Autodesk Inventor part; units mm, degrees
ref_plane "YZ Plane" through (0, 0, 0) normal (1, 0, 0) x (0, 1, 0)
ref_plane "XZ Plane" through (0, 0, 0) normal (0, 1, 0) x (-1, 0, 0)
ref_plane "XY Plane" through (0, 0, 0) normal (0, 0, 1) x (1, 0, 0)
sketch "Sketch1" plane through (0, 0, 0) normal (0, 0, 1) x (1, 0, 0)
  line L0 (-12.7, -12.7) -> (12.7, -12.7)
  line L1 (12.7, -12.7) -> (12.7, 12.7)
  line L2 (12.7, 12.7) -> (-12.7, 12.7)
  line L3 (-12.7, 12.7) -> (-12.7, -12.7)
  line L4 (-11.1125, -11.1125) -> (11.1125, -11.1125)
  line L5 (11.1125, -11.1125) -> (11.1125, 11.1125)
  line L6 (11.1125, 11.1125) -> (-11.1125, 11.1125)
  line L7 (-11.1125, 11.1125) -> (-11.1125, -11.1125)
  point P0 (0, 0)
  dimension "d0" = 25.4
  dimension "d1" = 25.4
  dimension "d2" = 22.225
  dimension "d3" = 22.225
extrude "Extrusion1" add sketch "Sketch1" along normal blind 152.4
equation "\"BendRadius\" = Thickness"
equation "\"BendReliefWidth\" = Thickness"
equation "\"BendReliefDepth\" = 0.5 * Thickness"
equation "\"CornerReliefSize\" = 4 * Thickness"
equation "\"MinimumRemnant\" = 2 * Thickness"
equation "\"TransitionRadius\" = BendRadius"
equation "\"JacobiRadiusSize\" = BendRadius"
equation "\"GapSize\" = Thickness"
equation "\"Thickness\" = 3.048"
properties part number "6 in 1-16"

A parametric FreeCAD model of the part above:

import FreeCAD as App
import Part
import Sketcher
Q = App.Units.Quantity

doc = App.newDocument("Part")
body = doc.addObject("PartDesign::Body", "Body")

sketch1 = doc.addObject("Sketcher::SketchObject", "Sketch")
body.addObject(sketch1)
sketch1.AttachmentSupport = (doc.XY_Plane, [""])
sketch1.MapMode = "FlatFace"
sketch1.addGeometry(Part.LineSegment(App.Vector(-12.7, 12.7, 0), App.Vector(-12.7, -12.7, 0)), False)
sketch1.addGeometry(Part.LineSegment(App.Vector(-12.7, -12.7, 0), App.Vector(12.7, -12.7, 0)), False)
sketch1.addGeometry(Part.LineSegment(App.Vector(12.7, -12.7, 0), App.Vector(12.7, 12.7, 0)), False)
sketch1.addGeometry(Part.LineSegment(App.Vector(12.7, 12.7, 0), App.Vector(-12.7, 12.7, 0)), False)
sketch1.addGeometry(Part.LineSegment(App.Vector(11.1125, -11.1125, 0), App.Vector(-11.1125, -11.1125, 0)), False)
sketch1.addGeometry(Part.LineSegment(App.Vector(-11.1125, -11.1125, 0), App.Vector(-11.1125, 11.1125, 0)), False)
sketch1.addGeometry(Part.LineSegment(App.Vector(-11.1125, 11.1125, 0), App.Vector(11.1125, 11.1125, 0)), False)
sketch1.addGeometry(Part.LineSegment(App.Vector(11.1125, 11.1125, 0), App.Vector(11.1125, -11.1125, 0)), False)
sketch1.addConstraint(Sketcher.Constraint("Coincident", 0, 2, 1, 1))
sketch1.addConstraint(Sketcher.Constraint("Coincident", 1, 2, 2, 1))
sketch1.addConstraint(Sketcher.Constraint("Coincident", 2, 2, 3, 1))
sketch1.addConstraint(Sketcher.Constraint("Coincident", 3, 2, 0, 1))
sketch1.addConstraint(Sketcher.Constraint("Coincident", 4, 2, 5, 1))
sketch1.addConstraint(Sketcher.Constraint("Coincident", 5, 2, 6, 1))
sketch1.addConstraint(Sketcher.Constraint("Coincident", 6, 2, 7, 1))
sketch1.addConstraint(Sketcher.Constraint("Coincident", 7, 2, 4, 1))
sketch1.addConstraint(Sketcher.Constraint("Vertical", 0))
sketch1.addConstraint(Sketcher.Constraint("Horizontal", 1))
sketch1.addConstraint(Sketcher.Constraint("Vertical", 2))
sketch1.addConstraint(Sketcher.Constraint("Horizontal", 3))
sketch1.addConstraint(Sketcher.Constraint("Horizontal", 4))
sketch1.addConstraint(Sketcher.Constraint("Vertical", 5))
sketch1.addConstraint(Sketcher.Constraint("Horizontal", 6))
sketch1.addConstraint(Sketcher.Constraint("Vertical", 7))
sketch1.addConstraint(Sketcher.Constraint("Symmetric", 0, 2, 2, 2, -1, 1))
sketch1.addConstraint(Sketcher.Constraint("Symmetric", 4, 2, 6, 2, -1, 1))
sketch1.addConstraint(Sketcher.Constraint("Equal", 3, 0))
sketch1.addConstraint(Sketcher.Constraint("Equal", 6, 5))
sketch1.addConstraint(Sketcher.Constraint("DistanceX", 1, 1, 1, 2, Q("1 in")))
sketch1.addConstraint(Sketcher.Constraint("DistanceX", 4, 2, 4, 1, Q("0.875 in")))
pad1 = doc.addObject("PartDesign::Pad", "Pad")
body.addObject(pad1)
pad1.Profile = sketch1
pad1.Length = Q("6 in")

doc.recompute()
